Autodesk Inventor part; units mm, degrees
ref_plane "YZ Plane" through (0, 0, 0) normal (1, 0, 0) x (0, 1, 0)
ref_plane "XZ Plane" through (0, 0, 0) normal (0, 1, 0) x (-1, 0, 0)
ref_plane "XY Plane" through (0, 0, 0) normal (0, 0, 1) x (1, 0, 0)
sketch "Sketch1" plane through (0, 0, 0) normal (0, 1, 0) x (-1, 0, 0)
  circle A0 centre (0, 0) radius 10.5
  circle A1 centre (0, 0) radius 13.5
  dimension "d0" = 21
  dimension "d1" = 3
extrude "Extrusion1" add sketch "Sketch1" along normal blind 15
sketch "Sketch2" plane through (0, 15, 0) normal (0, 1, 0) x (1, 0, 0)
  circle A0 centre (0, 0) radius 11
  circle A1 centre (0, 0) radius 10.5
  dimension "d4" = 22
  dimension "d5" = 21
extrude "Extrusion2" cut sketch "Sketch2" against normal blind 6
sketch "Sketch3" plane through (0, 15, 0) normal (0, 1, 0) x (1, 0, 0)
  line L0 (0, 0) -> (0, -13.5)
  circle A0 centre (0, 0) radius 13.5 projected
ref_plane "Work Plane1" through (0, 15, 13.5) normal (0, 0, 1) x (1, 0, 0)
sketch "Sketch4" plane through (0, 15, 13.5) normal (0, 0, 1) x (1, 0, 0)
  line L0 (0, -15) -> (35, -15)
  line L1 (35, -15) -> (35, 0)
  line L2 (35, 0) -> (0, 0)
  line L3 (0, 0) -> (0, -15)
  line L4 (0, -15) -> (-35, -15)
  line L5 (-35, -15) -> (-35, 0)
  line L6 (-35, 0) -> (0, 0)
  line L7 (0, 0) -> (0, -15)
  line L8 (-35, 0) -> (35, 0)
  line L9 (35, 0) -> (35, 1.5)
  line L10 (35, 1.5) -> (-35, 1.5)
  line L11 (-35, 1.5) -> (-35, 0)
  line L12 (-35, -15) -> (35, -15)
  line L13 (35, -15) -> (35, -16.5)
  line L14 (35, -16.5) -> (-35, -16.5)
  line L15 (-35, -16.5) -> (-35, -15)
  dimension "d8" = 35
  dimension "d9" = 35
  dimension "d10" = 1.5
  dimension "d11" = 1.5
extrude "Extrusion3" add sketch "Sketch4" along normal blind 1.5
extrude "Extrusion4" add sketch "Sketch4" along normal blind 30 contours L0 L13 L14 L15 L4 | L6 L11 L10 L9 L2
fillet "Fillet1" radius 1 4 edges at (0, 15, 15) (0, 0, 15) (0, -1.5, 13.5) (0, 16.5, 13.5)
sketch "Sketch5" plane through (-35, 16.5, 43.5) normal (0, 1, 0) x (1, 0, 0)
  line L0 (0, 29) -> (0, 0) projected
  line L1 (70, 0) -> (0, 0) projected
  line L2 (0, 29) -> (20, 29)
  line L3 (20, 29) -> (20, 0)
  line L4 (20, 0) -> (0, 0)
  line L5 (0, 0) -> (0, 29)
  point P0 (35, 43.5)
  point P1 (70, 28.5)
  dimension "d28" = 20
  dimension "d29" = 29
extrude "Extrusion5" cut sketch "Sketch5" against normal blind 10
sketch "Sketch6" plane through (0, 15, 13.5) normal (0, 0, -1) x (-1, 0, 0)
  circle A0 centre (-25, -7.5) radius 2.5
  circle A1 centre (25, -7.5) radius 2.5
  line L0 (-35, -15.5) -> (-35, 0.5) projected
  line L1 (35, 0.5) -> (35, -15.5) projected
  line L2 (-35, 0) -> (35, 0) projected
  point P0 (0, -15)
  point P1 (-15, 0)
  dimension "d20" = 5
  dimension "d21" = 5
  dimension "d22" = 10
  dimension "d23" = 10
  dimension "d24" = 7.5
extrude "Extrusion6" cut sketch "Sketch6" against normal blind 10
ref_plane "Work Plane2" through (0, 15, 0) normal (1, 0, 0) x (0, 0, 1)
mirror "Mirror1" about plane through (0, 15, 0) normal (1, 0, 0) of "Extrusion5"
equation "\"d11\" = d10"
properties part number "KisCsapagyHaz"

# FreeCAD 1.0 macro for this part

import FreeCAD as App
import Part
import Sketcher
Q = App.Units.Quantity


def edges_at(feature, points):
    """Names of the edges that pass closest to the given points."""
    edges = feature.Shape.Edges
    near = lambda p: min(range(len(edges)), key=lambda i: edges[i].distToShape(Part.Vertex(*p))[0])
    return sorted({f"Edge{near(p) + 1}" for p in points})


def add_polygon(sketch, points):
    """Adds a closed chain of lines whose ends are joined by coincident constraints."""
    first, n = sketch.GeometryCount, len(points)
    for a, b in zip(points, points[1:] + points[:1]):
        sketch.addGeometry(Part.LineSegment(App.Vector(*a, 0), App.Vector(*b, 0)), False)
    for i in range(n):
        sketch.addConstraint(Sketcher.Constraint("Coincident", first + i, 2, first + (i + 1) % n, 1))

doc = App.newDocument("Part")
body = doc.addObject("PartDesign::Body", "Body")
body.AllowCompound = True

sketch1 = body.newObject("Sketcher::SketchObject", "Sketch")
sketch1.AttachmentSupport = (doc.getObject("XZ_Plane"), [""])
sketch1.MapMode = "FlatFace"
sketch1.addGeometry(Part.Circle(App.Vector(0, 0, 0), App.Vector(0, 0, 1), 14), False)
sketch1.addGeometry(Part.Circle(App.Vector(0, 0, 0), App.Vector(0, 0, 1), 10), False)
sketch1.addConstraint(Sketcher.Constraint("Coincident", 0, 3, -1, 1))
sketch1.addConstraint(Sketcher.Constraint("Coincident", 1, 3, -1, 1))
sketch1.addConstraint(Sketcher.Constraint("Diameter", 1, Q("21 mm")))
sketch1.addConstraint(Sketcher.Constraint("Diameter", 0, Q("27 mm")))
pad1 = body.newObject("PartDesign::Pad", "Pad")
pad1.Profile = sketch1
pad1.Length = 15
pad1.Reversed = True

sketch2 = body.newObject("Sketcher::SketchObject", "Sketch001")
sketch2.AttachmentSupport = (doc.getObject("XZ_Plane"), [""])
sketch2.MapMode = "FlatFace"
sketch2.AttachmentOffset = App.Placement(App.Vector(0, 0, -15), App.Rotation())
sketch2.addGeometry(Part.Circle(App.Vector(0, 0, 0), App.Vector(0, 0, 1), 11), False)
sketch2.addGeometry(Part.Circle(App.Vector(0, 0, 0), App.Vector(0, 0, 1), 10), False)
sketch2.addConstraint(Sketcher.Constraint("Coincident", 0, 3, -1, 1))
sketch2.addConstraint(Sketcher.Constraint("Coincident", 1, 3, -1, 1))
sketch2.addConstraint(Sketcher.Constraint("Diameter", 0, Q("22 mm")))
sketch2.addConstraint(Sketcher.Constraint("Diameter", 1, Q("21 mm")))
pocket1 = body.newObject("PartDesign::Pocket", "Pocket")
pocket1.Profile = sketch2
pocket1.Length = 6
pocket1.Reversed = True

sketch3 = body.newObject("Sketcher::SketchObject", "Sketch002")
sketch3.AttachmentSupport = (doc.getObject("XY_Plane"), [""])
sketch3.MapMode = "FlatFace"
sketch3.AttachmentOffset = App.Placement(App.Vector(0, 0, 13.5), App.Rotation())
add_polygon(sketch3, [(35, 16), (-35, 16), (-35, -2), (35, -2)])
sketch3.addConstraint(Sketcher.Constraint("Horizontal", 0))
sketch3.addConstraint(Sketcher.Constraint("Vertical", 1))
sketch3.addConstraint(Sketcher.Constraint("Horizontal", 2))
sketch3.addConstraint(Sketcher.Constraint("Vertical", 3))
sketch3.addConstraint(Sketcher.Constraint("DistanceX", 0, 2, -1, 1, Q("35 mm")))
sketch3.addConstraint(Sketcher.Constraint("DistanceX", -1, 1, 2, 2, Q("35 mm")))
sketch3.addConstraint(Sketcher.Constraint("DistanceY", 1, 2, -1, 1, Q("1.5 mm")))
sketch3.addConstraint(Sketcher.Constraint("DistanceY", 1, 2, 1, 1, Q("18 mm")))
pad2 = body.newObject("PartDesign::Pad", "Pad001")
pad2.Profile = sketch3
pad2.Length = 1.5

sketch4 = body.newObject("Sketcher::SketchObject", "Sketch003")
sketch4.AttachmentSupport = (doc.getObject("XY_Plane"), [""])
sketch4.MapMode = "FlatFace"
sketch4.AttachmentOffset = App.Placement(App.Vector(0, 0, 13.5), App.Rotation())
add_polygon(sketch4, [(35, 0), (-35, 0), (-35, -1.5), (35, -1.5)])
add_polygon(sketch4, [(-35, 15), (35, 15), (35, 16.5), (-35, 16.5)])
sketch4.addConstraint(Sketcher.Constraint("Horizontal", 0))
sketch4.addConstraint(Sketcher.Constraint("Vertical", 1))
sketch4.addConstraint(Sketcher.Constraint("Horizontal", 2))
sketch4.addConstraint(Sketcher.Constraint("Vertical", 3))
sketch4.addConstraint(Sketcher.Constraint("Horizontal", 4))
sketch4.addConstraint(Sketcher.Constraint("Vertical", 5))
sketch4.addConstraint(Sketcher.Constraint("Horizontal", 6))
sketch4.addConstraint(Sketcher.Constraint("Vertical", 7))
sketch4.addConstraint(Sketcher.Constraint("Symmetric", 0, 2, 3, 2, -1, 1))
sketch4.addConstraint(Sketcher.Constraint("Vertical", 3, 2, 4, 2))
sketch4.addConstraint(Sketcher.Constraint("Vertical", 1, 2, 6, 2))
sketch4.addConstraint(Sketcher.Constraint("Equal", 3, 5))
sketch4.addConstraint(Sketcher.Constraint("DistanceY", 1, 2, 1, 1, Q("1.5 mm")))
sketch4.addConstraint(Sketcher.Constraint("DistanceX", 0, 2, -1, 1, Q("35 mm")))
sketch4.addConstraint(Sketcher.Constraint("DistanceY", -1, 1, 4, 2, Q("15 mm")))
pad3 = body.newObject("PartDesign::Pad", "Pad002")
pad3.Profile = sketch4
pad3.Length = 30
doc.recompute()

fillet = body.newObject("PartDesign::Fillet", "Fillet")
fillet.Base = (pad3, edges_at(pad3, [
    (0, 15, 15),
    (0, 0, 15),
    (0, -1.5, 13.5),
    (0, 16.5, 13.5),
]))
fillet.Radius = 1

sketch5 = body.newObject("Sketcher::SketchObject", "Sketch004")
sketch5.AttachmentSupport = (doc.getObject("XZ_Plane"), [""])
sketch5.MapMode = "FlatFace"
sketch5.AttachmentOffset = App.Placement(App.Vector(0, 0, -16.5), App.Rotation())
add_polygon(sketch5, [(-15, 14), (-35, 14), (-35, 44), (-15, 44)])
sketch5.addConstraint(Sketcher.Constraint("Horizontal", 0))
sketch5.addConstraint(Sketcher.Constraint("Vertical", 1))
sketch5.addConstraint(Sketcher.Constraint("Horizontal", 2))
sketch5.addConstraint(Sketcher.Constraint("Vertical", 3))
sketch5.addConstraint(Sketcher.Constraint("DistanceX", 0, 2, 0, 1, Q("20 mm")))
sketch5.addConstraint(Sketcher.Constraint("DistanceY", 1, 1, 1, 2, Q("29 mm")))
sketch5.addConstraint(Sketcher.Constraint("DistanceX", 0, 2, -1, 1, Q("35 mm")))
sketch5.addConstraint(Sketcher.Constraint("DistanceY", -1, 1, 0, 2, Q("14.5 mm")))
pocket2 = body.newObject("PartDesign::Pocket", "Pocket001")
pocket2.Profile = sketch5
pocket2.Length = 10
pocket2.Reversed = True

sketch6 = body.newObject("Sketcher::SketchObject", "Sketch005")
sketch6.AttachmentSupport = (doc.getObject("XY_Plane"), [""])
sketch6.MapMode = "FlatFace"
sketch6.AttachmentOffset = App.Placement(App.Vector(0, 0, 13.5), App.Rotation())
sketch6.addGeometry(Part.Circle(App.Vector(25, 7.5, 0), App.Vector(0, 0, 1), 2.5), False)
sketch6.addGeometry(Part.Circle(App.Vector(-25, 7.5, 0), App.Vector(0, 0, 1), 2.5), False)
sketch6.addConstraint(Sketcher.Constraint("Equal", 0, 1))
sketch6.addConstraint(Sketcher.Constraint("Symmetric", 0, 3, 1, 3, -2))
sketch6.addConstraint(Sketcher.Constraint("Diameter", 0, Q("5 mm")))
sketch6.addConstraint(Sketcher.Constraint("DistanceY", -1, 1, 0, 3, Q("7.5 mm")))
sketch6.addConstraint(Sketcher.Constraint("DistanceX", -1, 1, 0, 3, Q("25 mm")))
pocket3 = body.newObject("PartDesign::Pocket", "Pocket002")
pocket3.Profile = sketch6
pocket3.Length = 10
pocket3.Reversed = True
doc.recompute()

mirrored = body.newObject("PartDesign::Mirrored", "Mirrored")
mirrored.Originals = [pocket2]
mirrored.MirrorPlane = (doc.getObject("YZ_Plane"), [""])
body.Tip = mirrored

doc.recompute()
